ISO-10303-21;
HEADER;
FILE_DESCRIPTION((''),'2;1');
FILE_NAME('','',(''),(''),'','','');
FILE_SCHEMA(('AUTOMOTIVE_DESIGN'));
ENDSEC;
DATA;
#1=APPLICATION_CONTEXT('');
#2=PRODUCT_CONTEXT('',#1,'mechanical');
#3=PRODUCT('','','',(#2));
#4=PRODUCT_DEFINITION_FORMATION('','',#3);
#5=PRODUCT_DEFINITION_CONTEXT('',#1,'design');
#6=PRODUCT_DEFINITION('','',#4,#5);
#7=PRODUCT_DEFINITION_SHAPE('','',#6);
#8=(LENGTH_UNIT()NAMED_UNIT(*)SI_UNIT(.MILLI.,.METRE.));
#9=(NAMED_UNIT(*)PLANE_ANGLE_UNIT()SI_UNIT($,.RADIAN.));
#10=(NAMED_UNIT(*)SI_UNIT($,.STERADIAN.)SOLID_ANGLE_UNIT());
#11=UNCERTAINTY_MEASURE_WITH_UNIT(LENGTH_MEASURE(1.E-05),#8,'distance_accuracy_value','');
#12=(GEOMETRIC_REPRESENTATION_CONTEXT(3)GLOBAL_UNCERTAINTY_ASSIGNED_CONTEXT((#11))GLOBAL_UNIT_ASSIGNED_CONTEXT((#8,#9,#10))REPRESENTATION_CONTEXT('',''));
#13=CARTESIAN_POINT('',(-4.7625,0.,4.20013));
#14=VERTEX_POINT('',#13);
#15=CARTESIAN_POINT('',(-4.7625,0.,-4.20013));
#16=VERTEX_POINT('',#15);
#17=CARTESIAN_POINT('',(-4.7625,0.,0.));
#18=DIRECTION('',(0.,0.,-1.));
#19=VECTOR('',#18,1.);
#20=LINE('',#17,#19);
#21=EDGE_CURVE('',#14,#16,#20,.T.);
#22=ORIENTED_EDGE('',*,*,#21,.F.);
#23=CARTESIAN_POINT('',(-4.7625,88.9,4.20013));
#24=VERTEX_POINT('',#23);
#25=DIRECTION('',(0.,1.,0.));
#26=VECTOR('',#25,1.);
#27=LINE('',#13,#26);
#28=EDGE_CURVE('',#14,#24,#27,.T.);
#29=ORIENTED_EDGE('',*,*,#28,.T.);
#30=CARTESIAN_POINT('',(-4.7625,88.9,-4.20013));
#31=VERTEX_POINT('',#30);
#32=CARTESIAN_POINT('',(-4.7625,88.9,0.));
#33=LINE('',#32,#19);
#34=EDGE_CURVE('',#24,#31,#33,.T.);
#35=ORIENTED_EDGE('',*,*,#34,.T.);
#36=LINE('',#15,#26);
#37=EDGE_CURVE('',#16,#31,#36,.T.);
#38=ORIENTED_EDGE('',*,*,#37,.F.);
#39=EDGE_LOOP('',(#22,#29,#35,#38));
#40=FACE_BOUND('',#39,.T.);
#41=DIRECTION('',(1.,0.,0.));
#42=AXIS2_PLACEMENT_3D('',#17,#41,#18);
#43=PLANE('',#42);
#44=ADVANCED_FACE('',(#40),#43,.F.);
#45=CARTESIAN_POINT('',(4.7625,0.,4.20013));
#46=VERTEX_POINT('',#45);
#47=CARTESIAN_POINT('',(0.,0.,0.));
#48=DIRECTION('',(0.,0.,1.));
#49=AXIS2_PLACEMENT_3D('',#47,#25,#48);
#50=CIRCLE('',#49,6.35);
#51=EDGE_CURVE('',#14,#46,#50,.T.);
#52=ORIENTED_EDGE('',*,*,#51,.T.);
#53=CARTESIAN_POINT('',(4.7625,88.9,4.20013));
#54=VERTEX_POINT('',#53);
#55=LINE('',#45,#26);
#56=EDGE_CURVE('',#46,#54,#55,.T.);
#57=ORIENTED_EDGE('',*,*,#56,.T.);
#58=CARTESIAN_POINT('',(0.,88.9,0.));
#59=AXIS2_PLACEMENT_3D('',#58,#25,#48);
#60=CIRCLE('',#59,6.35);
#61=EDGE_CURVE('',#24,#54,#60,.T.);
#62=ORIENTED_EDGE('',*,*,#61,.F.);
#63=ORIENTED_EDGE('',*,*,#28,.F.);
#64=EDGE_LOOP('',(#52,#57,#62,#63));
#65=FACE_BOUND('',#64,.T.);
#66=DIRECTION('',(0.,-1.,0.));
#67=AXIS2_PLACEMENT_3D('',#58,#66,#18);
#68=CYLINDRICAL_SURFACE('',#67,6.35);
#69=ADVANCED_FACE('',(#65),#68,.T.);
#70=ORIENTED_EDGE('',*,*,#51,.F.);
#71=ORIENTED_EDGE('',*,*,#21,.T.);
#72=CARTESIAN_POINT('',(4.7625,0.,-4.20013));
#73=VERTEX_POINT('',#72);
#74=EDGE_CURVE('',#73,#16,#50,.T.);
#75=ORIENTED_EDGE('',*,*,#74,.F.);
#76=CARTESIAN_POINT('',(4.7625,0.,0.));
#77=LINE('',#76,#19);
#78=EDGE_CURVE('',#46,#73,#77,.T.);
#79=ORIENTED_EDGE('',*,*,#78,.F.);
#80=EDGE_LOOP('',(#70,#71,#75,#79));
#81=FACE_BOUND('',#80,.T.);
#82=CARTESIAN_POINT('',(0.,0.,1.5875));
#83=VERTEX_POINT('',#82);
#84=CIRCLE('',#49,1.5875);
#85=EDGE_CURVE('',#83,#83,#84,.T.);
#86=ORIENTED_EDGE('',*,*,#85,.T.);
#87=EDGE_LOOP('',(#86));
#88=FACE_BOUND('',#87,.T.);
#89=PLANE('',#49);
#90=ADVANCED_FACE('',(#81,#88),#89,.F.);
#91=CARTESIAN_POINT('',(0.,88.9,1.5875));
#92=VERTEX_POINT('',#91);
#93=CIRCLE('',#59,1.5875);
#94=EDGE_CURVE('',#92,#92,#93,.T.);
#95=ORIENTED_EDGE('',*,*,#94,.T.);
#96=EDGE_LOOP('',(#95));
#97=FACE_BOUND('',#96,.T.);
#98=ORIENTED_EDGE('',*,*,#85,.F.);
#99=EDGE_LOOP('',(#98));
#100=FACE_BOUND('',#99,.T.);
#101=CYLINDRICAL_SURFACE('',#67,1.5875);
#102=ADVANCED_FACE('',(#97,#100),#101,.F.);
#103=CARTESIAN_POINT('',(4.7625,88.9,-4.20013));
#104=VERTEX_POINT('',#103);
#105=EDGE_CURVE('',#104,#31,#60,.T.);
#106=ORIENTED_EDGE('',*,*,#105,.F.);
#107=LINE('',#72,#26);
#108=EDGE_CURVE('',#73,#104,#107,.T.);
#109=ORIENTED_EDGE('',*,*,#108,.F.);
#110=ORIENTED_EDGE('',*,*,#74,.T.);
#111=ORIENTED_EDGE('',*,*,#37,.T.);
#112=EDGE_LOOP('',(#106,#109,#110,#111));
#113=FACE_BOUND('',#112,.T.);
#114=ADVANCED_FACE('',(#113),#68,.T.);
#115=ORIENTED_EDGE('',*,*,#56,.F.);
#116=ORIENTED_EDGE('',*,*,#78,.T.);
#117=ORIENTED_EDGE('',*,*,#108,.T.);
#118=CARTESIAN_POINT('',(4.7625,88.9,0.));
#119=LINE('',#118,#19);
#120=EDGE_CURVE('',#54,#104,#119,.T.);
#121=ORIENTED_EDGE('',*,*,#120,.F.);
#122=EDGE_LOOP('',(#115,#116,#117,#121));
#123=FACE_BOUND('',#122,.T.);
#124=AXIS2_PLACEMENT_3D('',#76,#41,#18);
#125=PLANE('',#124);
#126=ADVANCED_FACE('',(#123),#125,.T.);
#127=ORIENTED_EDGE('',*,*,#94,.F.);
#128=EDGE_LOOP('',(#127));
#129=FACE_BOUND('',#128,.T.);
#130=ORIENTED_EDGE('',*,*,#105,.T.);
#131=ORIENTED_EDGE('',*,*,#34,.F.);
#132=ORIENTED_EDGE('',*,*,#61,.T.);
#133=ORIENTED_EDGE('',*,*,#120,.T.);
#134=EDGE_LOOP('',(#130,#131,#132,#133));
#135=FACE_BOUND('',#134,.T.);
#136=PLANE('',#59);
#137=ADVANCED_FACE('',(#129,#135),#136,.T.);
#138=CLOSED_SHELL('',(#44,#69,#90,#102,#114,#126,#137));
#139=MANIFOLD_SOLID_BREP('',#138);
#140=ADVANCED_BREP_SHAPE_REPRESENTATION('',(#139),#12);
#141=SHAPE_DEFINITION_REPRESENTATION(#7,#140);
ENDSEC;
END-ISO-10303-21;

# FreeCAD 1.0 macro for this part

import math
import FreeCAD as App
import Part
import Sketcher

V = App.Vector
Q = App.Units.Quantity

doc = App.newDocument("Part")
body = doc.addObject("PartDesign::Body", "Body")

# Sketch on XZ plane
sketch1 = body.newObject("Sketcher::SketchObject", "Sketch")
sketch1.AttachmentSupport = (doc.getObject("XZ_Plane"), [""])
sketch1.MapMode = "FlatFace"
sketch1.addGeometry(Part.Circle(V(0, 0, 0), V(0, 0, 1), 6.35), False)
sketch1.addGeometry(Part.Circle(V(0, 0, 0), V(0, 0, 1), 1.5875), False)
sketch1.addConstraint(Sketcher.Constraint("Coincident", 0, 3, -1, 1))
sketch1.addConstraint(Sketcher.Constraint("Coincident", 1, 3, -1, 1))
sketch1.addConstraint(Sketcher.Constraint("Diameter", 0, Q("0.5 in")))
sketch1.addConstraint(Sketcher.Constraint("Diameter", 1, Q("0.125 in")))
pad1 = body.newObject("PartDesign::Pad", "Pad")
pad1.Profile = sketch1
pad1.Length = Q("3.5 in")
pad1.Reversed = True

# Sketch on XZ plane
sketch2 = body.newObject("Sketcher::SketchObject", "Sketch001")
sketch2.AttachmentSupport = (doc.getObject("XZ_Plane"), [""])
sketch2.MapMode = "FlatFace"
sketch2.AttachmentOffset = App.Placement(V(0, 0, -3.5 * 25.4), App.Rotation())
sketch2.addGeometry(Part.ArcOfCircle(Part.Circle(V(0, 0, 0), V(0, 0, 1), 6.35), math.radians(138.590378), math.radians(221.409622)), False)
sketch2.addGeometry(Part.LineSegment(V(-4.7625, 4.20013, 0), V(-4.7625, -4.20013, 0)), False)
sketch2.addGeometry(Part.LineSegment(V(4.7625, -4.20013, 0), V(4.7625, 4.20013, 0)), False)
sketch2.addGeometry(Part.ArcOfCircle(Part.Circle(V(0, 0, 0), V(0, 0, 1), 6.35), math.radians(0), math.radians(41.409622)), False)
sketch2.addGeometry(Part.ArcOfCircle(Part.Circle(V(0, 0, 0), V(0, 0, 1), 6.35), math.radians(-41.409622), math.radians(0)), False)
sketch2.addConstraint(Sketcher.Constraint("Coincident", 0, 1, 1, 1))
sketch2.addConstraint(Sketcher.Constraint("Coincident", 1, 2, 0, 2))
sketch2.addConstraint(Sketcher.Constraint("Coincident", 2, 2, 3, 2))
sketch2.addConstraint(Sketcher.Constraint("Tangent", 3, 1, 4, 2))
sketch2.addConstraint(Sketcher.Constraint("Coincident", 4, 1, 2, 1))
sketch2.addConstraint(Sketcher.Constraint("Vertical", 1))
sketch2.addConstraint(Sketcher.Constraint("Vertical", 2))
sketch2.addConstraint(Sketcher.Constraint("Coincident", 0, 3, -1, 1))
sketch2.addConstraint(Sketcher.Constraint("Coincident", 3, 3, -1, 1))
sketch2.addConstraint(Sketcher.Constraint("Equal", 0, 3))
sketch2.addConstraint(Sketcher.Constraint("Equal", 3, 4))
sketch2.addConstraint(Sketcher.Constraint("PointOnObject", 3, 1, -1))
sketch2.addConstraint(Sketcher.Constraint("Horizontal", 0, 1, 2, 2))
sketch2.addConstraint(Sketcher.Constraint("Radius", 0, Q("0.25 in")))
sketch2.addConstraint(Sketcher.Constraint("DistanceX", 0, 1, -1, 1, Q("0.1875 in")))
pocket1 = body.newObject("PartDesign::Pocket", "Pocket")
pocket1.Profile = sketch2
pocket1.Type = "ThroughAll"
pocket1.Reversed = True

doc.recompute()
